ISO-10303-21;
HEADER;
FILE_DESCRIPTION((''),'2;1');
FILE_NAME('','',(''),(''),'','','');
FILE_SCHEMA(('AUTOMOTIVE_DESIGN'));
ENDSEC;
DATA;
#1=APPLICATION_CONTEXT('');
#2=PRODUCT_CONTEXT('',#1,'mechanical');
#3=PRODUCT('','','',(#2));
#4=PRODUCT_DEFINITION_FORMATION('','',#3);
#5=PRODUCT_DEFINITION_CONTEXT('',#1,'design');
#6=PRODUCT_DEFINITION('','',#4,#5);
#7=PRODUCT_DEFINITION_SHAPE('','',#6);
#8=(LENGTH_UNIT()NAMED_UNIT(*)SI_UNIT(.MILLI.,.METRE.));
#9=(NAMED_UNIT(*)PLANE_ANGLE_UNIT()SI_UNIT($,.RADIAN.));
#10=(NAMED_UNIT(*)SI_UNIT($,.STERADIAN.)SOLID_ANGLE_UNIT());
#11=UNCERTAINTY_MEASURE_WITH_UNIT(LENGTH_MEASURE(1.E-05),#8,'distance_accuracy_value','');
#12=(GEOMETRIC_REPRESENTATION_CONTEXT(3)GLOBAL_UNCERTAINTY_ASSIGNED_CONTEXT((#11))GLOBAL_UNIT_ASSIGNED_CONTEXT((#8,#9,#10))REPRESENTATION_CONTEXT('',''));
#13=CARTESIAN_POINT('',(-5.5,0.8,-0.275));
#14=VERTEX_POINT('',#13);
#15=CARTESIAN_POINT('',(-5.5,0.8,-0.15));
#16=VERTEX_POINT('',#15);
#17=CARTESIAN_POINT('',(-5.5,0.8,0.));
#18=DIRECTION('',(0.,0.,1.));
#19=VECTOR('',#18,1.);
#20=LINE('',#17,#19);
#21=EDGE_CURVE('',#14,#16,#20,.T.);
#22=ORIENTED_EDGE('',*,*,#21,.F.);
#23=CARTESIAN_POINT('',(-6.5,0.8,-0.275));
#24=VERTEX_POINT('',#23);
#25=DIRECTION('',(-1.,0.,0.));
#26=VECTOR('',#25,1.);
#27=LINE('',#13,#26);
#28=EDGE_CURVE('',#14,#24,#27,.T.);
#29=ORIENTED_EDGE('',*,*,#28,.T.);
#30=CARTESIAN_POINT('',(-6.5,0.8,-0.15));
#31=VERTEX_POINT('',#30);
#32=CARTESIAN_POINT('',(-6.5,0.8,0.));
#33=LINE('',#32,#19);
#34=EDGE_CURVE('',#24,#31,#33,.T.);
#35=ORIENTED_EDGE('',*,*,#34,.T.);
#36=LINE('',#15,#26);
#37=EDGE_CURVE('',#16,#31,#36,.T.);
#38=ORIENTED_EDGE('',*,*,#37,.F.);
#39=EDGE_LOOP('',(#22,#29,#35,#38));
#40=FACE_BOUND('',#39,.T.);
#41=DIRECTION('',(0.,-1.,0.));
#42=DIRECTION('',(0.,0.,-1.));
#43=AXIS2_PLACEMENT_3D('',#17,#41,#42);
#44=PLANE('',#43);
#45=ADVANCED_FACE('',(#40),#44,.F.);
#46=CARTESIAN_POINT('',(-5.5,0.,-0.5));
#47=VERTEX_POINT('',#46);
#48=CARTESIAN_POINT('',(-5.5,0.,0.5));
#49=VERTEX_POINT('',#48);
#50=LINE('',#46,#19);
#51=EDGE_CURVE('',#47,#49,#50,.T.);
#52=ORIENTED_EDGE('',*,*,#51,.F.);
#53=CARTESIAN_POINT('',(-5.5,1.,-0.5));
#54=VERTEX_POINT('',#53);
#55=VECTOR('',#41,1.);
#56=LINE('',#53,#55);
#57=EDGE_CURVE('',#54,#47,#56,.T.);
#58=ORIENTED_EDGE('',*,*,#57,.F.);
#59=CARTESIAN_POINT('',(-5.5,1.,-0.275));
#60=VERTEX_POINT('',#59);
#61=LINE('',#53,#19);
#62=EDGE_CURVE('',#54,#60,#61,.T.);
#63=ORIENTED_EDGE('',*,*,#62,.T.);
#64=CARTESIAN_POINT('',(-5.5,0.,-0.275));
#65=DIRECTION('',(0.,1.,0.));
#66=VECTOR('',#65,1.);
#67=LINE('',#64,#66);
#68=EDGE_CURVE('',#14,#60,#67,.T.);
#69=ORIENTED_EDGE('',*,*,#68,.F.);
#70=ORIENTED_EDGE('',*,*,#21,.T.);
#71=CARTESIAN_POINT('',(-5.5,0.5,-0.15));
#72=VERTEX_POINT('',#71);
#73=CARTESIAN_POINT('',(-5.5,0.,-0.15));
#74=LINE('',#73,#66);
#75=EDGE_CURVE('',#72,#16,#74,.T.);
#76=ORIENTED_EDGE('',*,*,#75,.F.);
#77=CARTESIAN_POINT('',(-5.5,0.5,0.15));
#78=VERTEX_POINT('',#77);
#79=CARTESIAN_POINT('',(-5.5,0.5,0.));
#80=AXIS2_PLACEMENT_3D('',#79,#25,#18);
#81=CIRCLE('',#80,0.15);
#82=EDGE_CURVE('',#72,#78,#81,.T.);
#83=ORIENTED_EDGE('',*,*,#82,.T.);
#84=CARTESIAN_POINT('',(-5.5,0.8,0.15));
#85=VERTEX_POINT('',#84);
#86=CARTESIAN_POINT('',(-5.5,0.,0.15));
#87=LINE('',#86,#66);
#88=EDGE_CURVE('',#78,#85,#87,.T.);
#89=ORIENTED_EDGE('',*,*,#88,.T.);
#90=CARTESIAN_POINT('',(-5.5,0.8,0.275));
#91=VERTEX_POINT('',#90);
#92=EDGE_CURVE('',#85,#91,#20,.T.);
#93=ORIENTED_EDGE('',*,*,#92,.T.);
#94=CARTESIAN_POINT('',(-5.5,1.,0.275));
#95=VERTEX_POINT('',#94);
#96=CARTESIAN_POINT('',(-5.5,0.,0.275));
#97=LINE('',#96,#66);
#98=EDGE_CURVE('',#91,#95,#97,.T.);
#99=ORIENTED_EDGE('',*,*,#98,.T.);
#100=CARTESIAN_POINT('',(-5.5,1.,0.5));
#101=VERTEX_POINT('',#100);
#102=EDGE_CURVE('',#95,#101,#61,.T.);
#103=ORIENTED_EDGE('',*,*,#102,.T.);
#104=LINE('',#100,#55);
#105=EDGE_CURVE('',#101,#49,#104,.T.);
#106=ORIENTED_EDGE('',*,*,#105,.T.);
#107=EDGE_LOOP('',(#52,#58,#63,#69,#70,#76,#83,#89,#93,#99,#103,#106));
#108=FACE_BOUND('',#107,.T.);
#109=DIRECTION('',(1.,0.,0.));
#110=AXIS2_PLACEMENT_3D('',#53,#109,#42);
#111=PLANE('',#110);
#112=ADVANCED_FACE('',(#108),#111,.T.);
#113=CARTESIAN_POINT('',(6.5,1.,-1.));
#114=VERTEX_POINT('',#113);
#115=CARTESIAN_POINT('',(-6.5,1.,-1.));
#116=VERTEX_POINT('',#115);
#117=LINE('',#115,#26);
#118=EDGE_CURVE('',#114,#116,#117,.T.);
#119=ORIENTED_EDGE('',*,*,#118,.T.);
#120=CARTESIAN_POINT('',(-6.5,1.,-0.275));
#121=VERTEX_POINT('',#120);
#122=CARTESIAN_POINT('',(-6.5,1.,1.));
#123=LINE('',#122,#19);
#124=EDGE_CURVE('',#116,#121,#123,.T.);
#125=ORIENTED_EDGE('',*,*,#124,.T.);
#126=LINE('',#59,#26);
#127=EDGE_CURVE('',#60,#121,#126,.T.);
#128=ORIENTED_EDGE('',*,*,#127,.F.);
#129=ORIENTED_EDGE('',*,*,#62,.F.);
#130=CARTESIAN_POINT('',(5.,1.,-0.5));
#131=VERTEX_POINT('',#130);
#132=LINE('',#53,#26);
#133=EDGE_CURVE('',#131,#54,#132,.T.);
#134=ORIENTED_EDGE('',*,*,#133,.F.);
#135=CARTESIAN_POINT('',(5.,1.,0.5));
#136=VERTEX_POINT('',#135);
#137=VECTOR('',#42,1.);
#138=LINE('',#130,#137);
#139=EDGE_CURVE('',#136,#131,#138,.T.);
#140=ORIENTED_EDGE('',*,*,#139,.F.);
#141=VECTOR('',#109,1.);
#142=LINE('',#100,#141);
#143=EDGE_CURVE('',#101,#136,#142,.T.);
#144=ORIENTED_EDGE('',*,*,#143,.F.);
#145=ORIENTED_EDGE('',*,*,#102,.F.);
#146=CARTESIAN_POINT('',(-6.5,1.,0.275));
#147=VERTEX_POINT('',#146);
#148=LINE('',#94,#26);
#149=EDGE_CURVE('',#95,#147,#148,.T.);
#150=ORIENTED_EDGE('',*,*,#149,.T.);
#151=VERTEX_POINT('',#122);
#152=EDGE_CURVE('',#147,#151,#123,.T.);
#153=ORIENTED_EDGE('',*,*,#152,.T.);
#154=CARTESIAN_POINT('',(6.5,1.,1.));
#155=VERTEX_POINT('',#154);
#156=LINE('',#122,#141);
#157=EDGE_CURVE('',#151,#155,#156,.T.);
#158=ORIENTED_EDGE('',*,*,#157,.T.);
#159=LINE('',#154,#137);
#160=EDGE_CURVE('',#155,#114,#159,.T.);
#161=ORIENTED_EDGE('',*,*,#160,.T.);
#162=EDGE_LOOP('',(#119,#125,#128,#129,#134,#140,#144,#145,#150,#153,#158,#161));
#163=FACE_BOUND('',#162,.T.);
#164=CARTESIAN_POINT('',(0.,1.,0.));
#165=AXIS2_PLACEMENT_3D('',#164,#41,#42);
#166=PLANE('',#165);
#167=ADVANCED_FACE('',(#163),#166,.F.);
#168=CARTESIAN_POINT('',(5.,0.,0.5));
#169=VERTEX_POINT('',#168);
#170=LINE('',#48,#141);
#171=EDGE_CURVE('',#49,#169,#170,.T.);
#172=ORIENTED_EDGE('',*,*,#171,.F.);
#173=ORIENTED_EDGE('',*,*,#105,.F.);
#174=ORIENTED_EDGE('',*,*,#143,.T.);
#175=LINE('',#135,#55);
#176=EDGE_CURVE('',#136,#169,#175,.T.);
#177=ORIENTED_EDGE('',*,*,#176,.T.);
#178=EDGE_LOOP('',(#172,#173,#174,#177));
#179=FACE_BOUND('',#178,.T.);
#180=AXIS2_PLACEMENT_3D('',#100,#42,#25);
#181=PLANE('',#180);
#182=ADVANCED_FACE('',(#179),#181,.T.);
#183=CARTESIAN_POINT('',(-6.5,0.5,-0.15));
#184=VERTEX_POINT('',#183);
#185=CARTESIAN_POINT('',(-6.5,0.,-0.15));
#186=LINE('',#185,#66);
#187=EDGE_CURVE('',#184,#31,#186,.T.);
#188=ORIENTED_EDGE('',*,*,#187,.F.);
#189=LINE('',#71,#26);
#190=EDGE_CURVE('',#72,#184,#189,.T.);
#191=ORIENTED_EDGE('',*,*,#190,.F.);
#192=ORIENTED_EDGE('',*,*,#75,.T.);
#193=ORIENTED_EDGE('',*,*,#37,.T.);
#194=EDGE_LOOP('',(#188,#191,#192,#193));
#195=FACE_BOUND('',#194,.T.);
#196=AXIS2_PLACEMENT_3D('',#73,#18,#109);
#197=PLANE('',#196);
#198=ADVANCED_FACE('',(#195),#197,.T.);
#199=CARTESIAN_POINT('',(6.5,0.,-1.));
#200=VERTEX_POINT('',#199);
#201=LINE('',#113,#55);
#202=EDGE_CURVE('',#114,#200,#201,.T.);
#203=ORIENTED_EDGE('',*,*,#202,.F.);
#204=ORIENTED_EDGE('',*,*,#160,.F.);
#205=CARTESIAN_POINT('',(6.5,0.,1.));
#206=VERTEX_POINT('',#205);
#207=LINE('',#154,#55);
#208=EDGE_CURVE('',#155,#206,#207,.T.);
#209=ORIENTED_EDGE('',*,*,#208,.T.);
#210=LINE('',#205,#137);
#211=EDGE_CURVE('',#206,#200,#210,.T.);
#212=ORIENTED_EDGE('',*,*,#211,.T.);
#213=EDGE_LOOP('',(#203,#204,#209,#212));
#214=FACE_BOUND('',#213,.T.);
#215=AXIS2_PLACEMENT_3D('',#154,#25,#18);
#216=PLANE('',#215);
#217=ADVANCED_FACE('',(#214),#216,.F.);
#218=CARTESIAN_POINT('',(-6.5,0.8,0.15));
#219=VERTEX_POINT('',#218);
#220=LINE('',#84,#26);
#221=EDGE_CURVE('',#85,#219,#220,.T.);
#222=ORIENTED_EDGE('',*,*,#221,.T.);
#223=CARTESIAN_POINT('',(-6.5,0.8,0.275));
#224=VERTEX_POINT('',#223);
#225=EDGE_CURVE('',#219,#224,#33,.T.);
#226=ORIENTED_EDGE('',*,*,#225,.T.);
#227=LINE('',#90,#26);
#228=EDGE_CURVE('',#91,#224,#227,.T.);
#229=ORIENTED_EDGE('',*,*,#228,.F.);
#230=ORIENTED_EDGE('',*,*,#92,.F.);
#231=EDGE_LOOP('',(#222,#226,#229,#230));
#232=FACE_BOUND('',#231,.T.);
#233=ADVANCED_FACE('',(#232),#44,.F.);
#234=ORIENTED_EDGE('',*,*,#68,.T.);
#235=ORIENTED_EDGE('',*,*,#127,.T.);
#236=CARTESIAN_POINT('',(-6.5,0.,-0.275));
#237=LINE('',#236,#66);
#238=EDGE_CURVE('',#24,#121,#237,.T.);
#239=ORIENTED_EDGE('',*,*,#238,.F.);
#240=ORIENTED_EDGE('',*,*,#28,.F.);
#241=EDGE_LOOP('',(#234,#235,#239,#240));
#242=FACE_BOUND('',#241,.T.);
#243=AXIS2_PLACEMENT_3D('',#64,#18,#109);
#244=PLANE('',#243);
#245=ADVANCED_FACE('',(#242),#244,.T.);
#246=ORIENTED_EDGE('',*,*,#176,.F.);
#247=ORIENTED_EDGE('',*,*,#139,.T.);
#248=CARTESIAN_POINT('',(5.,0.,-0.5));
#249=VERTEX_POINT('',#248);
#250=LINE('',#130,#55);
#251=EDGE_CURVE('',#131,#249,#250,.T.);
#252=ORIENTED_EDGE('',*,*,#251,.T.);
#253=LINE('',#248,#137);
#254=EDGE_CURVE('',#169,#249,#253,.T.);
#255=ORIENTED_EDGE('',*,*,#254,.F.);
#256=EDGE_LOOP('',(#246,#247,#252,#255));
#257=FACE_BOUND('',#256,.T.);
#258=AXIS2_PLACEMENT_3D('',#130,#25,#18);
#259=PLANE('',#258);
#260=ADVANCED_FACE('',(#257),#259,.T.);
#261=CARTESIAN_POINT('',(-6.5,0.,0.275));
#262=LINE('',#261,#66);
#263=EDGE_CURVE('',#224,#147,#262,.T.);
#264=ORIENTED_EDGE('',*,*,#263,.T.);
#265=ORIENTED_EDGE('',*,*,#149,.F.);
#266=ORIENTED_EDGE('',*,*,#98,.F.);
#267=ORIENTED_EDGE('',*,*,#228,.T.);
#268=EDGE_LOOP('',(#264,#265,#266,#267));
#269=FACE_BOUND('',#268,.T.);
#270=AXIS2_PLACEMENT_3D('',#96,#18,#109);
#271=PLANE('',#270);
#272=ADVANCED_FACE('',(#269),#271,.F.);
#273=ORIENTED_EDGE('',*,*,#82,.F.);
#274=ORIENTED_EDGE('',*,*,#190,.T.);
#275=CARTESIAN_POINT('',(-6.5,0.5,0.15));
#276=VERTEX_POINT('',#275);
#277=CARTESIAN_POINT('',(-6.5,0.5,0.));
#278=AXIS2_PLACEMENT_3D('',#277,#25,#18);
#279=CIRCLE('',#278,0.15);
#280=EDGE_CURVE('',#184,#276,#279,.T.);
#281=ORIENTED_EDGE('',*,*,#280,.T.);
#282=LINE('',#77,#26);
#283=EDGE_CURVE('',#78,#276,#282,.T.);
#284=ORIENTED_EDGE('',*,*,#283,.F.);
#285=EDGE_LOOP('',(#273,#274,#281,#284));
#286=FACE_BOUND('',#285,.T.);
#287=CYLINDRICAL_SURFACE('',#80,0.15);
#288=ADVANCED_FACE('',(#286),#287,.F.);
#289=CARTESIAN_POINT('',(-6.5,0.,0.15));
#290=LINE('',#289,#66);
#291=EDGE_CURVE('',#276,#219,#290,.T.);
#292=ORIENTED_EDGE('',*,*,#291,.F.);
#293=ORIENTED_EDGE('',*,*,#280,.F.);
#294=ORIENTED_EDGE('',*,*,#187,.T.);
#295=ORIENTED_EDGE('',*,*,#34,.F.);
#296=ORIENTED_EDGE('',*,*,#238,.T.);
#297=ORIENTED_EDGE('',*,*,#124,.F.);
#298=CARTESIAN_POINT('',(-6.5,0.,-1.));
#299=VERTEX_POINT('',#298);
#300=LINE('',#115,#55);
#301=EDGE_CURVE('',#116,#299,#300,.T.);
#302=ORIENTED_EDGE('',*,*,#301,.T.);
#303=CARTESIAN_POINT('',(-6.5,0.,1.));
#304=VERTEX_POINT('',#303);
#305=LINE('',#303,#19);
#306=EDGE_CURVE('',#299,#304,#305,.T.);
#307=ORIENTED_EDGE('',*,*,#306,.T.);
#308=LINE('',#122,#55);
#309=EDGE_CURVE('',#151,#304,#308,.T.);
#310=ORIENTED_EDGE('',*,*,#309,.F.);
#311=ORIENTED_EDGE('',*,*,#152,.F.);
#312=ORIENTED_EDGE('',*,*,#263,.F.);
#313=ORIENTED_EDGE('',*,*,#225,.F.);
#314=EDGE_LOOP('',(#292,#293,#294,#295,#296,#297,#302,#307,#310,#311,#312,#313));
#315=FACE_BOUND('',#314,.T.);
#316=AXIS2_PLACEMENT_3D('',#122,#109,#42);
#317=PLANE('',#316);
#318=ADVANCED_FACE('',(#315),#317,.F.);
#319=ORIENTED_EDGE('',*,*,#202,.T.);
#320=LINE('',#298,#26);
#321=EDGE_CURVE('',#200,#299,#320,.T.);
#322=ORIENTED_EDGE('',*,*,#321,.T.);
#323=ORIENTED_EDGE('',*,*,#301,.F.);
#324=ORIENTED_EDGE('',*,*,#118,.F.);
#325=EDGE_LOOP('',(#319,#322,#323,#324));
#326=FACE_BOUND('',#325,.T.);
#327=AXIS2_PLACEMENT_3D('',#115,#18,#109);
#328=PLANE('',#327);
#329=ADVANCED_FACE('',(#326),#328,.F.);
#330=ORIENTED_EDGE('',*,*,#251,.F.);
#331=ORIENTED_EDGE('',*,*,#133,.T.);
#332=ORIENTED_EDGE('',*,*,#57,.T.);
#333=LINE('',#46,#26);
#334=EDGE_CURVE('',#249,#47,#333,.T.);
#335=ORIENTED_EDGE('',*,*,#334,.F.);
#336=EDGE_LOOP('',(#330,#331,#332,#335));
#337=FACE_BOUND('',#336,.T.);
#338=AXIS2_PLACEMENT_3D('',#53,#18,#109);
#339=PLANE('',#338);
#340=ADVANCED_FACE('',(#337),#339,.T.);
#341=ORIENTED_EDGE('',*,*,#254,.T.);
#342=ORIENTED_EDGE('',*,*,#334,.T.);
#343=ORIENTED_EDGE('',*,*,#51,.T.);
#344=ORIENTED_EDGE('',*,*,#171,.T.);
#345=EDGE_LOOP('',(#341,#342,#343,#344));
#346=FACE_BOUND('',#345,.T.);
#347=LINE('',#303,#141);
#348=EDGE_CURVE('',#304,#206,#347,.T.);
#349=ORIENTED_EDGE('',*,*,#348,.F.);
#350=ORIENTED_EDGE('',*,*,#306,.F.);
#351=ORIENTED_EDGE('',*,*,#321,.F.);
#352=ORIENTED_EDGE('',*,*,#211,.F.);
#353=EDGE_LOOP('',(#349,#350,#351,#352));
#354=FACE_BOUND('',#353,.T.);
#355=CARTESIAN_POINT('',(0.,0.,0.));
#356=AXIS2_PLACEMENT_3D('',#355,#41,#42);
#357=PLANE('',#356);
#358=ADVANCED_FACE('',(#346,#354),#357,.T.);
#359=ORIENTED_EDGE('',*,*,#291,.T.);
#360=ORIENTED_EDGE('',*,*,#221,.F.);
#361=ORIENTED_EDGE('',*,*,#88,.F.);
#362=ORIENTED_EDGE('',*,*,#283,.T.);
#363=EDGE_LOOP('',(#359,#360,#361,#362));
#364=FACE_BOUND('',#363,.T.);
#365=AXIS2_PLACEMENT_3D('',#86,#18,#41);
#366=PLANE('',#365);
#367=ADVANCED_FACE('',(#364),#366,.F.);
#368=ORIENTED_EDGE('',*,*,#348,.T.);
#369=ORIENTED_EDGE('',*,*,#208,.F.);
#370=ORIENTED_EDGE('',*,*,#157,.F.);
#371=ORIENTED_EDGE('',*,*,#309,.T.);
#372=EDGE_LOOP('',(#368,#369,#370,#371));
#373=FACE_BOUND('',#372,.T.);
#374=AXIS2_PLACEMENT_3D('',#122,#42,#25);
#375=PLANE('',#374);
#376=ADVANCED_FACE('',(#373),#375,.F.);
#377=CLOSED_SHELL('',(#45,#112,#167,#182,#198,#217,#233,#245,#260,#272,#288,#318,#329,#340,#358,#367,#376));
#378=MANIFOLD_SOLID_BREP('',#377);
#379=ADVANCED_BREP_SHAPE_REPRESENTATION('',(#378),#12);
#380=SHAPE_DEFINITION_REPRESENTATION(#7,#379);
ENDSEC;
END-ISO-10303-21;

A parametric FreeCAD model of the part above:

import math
import FreeCAD as App
import Part
import Sketcher
from FreeCAD import Vector

doc = App.newDocument("Part")
body = doc.addObject("PartDesign::Body", "Body")

# Sketch on XZ plane
sketch1 = doc.addObject("Sketcher::SketchObject", "Sketch")
body.addObject(sketch1)
sketch1.AttachmentSupport = (doc.XZ_Plane, [""])
sketch1.MapMode = "FlatFace"
sketch1.addGeometry([
    Part.LineSegment(Vector(-6.5, -1, 0), Vector(-6.5, 1, 0)),  # 0
    Part.LineSegment(Vector(-6.5, 1, 0), Vector(6.5, 1, 0)),  # 1
    Part.LineSegment(Vector(6.5, 1, 0), Vector(6.5, -1, 0)),  # 2
    Part.LineSegment(Vector(6.5, -1, 0), Vector(-6.5, -1, 0)),  # 3
    Part.LineSegment(Vector(5, 0.5, 0), Vector(-5.5, 0.5, 0)),  # 4
    Part.LineSegment(Vector(-5.5, 0.5, 0), Vector(-5.5, -0.5, 0)),  # 5
    Part.LineSegment(Vector(-5.5, -0.5, 0), Vector(5, -0.5, 0)),  # 6
    Part.LineSegment(Vector(5, -0.5, 0), Vector(5, 0.5, 0)),  # 7
], False)
sketch1.addConstraint([
    Sketcher.Constraint("Coincident", 0, 2, 1, 1),
    Sketcher.Constraint("Coincident", 1, 2, 2, 1),
    Sketcher.Constraint("Coincident", 2, 2, 3, 1),
    Sketcher.Constraint("Coincident", 3, 2, 0, 1),
    Sketcher.Constraint("Coincident", 4, 2, 5, 1),
    Sketcher.Constraint("Coincident", 5, 2, 6, 1),
    Sketcher.Constraint("Coincident", 6, 2, 7, 1),
    Sketcher.Constraint("Coincident", 7, 2, 4, 1),
    Sketcher.Constraint("Vertical", 0),
    Sketcher.Constraint("Horizontal", 1),
    Sketcher.Constraint("Vertical", 2),
    Sketcher.Constraint("Horizontal", 3),
    Sketcher.Constraint("Horizontal", 4),
    Sketcher.Constraint("Vertical", 5),
    Sketcher.Constraint("Horizontal", 6),
    Sketcher.Constraint("Vertical", 7),
    Sketcher.Constraint("Symmetric", 0, 2, 2, 2, -1, 1),
    Sketcher.Constraint("DistanceX", 1, 1, 1, 2, 13.0),
    Sketcher.Constraint("DistanceY", 0, 1, 0, 2, 2.0),
    Sketcher.Constraint("DistanceY", 5, 2, 5, 1, 1.0),
    Sketcher.Constraint("DistanceX", 4, 2, 4, 1, 10.5),
    Sketcher.Constraint("DistanceX", -1, 1, 6, 2, 5.0),
    Sketcher.Constraint("DistanceY", -1, 1, 4, 2, 0.5),
])
pad1 = doc.addObject("PartDesign::Pad", "Pad")
body.addObject(pad1)
pad1.Profile = sketch1
pad1.Length = 1
pad1.Reversed = True

# Sketch on YZ plane
sketch2 = doc.addObject("Sketcher::SketchObject", "Sketch001")
body.addObject(sketch2)
sketch2.AttachmentSupport = (doc.YZ_Plane, [""])
sketch2.MapMode = "FlatFace"
sketch2.AttachmentOffset = App.Placement(Vector(0, 0, -6.5), App.Rotation())
sketch2.addGeometry([
    Part.LineSegment(Vector(0.5, 0.15, 0), Vector(0.8, 0.15, 0)),  # 0
    Part.LineSegment(Vector(0.8, 0.15, 0), Vector(0.8, 0.275, 0)),  # 1
    Part.LineSegment(Vector(0.8, 0.275, 0), Vector(1, 0.275, 0)),  # 2
    Part.LineSegment(Vector(1, 0.275, 0), Vector(1, -0.275, 0)),  # 3
    Part.LineSegment(Vector(1, -0.275, 0), Vector(0.8, -0.275, 0)),  # 4
    Part.LineSegment(Vector(0.8, -0.275, 0), Vector(0.8, -0.15, 0)),  # 5
    Part.LineSegment(Vector(0.8, -0.15, 0), Vector(0.5, -0.15, 0)),  # 6
    Part.ArcOfCircle(Part.Circle(Vector(0.5, 0, 0), Vector(0, 0, 1), 0.15), math.radians(90), math.radians(270)),  # 7
], False)
sketch2.addConstraint([
    Sketcher.Constraint("Coincident", 0, 2, 1, 1),
    Sketcher.Constraint("Coincident", 1, 2, 2, 1),
    Sketcher.Constraint("Coincident", 2, 2, 3, 1),
    Sketcher.Constraint("Coincident", 3, 2, 4, 1),
    Sketcher.Constraint("Coincident", 4, 2, 5, 1),
    Sketcher.Constraint("Coincident", 5, 2, 6, 1),
    Sketcher.Constraint("Tangent", 6, 2, 7, 2),
    Sketcher.Constraint("Tangent", 7, 1, 0, 1),
    Sketcher.Constraint("Horizontal", 0),
    Sketcher.Constraint("Vertical", 1),
    Sketcher.Constraint("Horizontal", 2),
    Sketcher.Constraint("Vertical", 3),
    Sketcher.Constraint("Horizontal", 4),
    Sketcher.Constraint("Vertical", 5),
    Sketcher.Constraint("Horizontal", 6),
    Sketcher.Constraint("Symmetric", 1, 2, 4, 2, -1),
    Sketcher.Constraint("PointOnObject", 7, 3, -1),
    Sketcher.Constraint("Radius", 7, 0.15),
    Sketcher.Constraint("DistanceX", 0, 1, 0, 2, 0.3),
    Sketcher.Constraint("DistanceX", 2, 1, 2, 2, 0.2),
    Sketcher.Constraint("DistanceX", -1, 1, 2, 2, 1.0),
    Sketcher.Constraint("DistanceY", 3, 2, 3, 1, 0.55),
])
pocket1 = doc.addObject("PartDesign::Pocket", "Pocket")
body.addObject(pocket1)
pocket1.Profile = sketch2
pocket1.Length = 1
pocket1.Reversed = True

doc.recompute()
